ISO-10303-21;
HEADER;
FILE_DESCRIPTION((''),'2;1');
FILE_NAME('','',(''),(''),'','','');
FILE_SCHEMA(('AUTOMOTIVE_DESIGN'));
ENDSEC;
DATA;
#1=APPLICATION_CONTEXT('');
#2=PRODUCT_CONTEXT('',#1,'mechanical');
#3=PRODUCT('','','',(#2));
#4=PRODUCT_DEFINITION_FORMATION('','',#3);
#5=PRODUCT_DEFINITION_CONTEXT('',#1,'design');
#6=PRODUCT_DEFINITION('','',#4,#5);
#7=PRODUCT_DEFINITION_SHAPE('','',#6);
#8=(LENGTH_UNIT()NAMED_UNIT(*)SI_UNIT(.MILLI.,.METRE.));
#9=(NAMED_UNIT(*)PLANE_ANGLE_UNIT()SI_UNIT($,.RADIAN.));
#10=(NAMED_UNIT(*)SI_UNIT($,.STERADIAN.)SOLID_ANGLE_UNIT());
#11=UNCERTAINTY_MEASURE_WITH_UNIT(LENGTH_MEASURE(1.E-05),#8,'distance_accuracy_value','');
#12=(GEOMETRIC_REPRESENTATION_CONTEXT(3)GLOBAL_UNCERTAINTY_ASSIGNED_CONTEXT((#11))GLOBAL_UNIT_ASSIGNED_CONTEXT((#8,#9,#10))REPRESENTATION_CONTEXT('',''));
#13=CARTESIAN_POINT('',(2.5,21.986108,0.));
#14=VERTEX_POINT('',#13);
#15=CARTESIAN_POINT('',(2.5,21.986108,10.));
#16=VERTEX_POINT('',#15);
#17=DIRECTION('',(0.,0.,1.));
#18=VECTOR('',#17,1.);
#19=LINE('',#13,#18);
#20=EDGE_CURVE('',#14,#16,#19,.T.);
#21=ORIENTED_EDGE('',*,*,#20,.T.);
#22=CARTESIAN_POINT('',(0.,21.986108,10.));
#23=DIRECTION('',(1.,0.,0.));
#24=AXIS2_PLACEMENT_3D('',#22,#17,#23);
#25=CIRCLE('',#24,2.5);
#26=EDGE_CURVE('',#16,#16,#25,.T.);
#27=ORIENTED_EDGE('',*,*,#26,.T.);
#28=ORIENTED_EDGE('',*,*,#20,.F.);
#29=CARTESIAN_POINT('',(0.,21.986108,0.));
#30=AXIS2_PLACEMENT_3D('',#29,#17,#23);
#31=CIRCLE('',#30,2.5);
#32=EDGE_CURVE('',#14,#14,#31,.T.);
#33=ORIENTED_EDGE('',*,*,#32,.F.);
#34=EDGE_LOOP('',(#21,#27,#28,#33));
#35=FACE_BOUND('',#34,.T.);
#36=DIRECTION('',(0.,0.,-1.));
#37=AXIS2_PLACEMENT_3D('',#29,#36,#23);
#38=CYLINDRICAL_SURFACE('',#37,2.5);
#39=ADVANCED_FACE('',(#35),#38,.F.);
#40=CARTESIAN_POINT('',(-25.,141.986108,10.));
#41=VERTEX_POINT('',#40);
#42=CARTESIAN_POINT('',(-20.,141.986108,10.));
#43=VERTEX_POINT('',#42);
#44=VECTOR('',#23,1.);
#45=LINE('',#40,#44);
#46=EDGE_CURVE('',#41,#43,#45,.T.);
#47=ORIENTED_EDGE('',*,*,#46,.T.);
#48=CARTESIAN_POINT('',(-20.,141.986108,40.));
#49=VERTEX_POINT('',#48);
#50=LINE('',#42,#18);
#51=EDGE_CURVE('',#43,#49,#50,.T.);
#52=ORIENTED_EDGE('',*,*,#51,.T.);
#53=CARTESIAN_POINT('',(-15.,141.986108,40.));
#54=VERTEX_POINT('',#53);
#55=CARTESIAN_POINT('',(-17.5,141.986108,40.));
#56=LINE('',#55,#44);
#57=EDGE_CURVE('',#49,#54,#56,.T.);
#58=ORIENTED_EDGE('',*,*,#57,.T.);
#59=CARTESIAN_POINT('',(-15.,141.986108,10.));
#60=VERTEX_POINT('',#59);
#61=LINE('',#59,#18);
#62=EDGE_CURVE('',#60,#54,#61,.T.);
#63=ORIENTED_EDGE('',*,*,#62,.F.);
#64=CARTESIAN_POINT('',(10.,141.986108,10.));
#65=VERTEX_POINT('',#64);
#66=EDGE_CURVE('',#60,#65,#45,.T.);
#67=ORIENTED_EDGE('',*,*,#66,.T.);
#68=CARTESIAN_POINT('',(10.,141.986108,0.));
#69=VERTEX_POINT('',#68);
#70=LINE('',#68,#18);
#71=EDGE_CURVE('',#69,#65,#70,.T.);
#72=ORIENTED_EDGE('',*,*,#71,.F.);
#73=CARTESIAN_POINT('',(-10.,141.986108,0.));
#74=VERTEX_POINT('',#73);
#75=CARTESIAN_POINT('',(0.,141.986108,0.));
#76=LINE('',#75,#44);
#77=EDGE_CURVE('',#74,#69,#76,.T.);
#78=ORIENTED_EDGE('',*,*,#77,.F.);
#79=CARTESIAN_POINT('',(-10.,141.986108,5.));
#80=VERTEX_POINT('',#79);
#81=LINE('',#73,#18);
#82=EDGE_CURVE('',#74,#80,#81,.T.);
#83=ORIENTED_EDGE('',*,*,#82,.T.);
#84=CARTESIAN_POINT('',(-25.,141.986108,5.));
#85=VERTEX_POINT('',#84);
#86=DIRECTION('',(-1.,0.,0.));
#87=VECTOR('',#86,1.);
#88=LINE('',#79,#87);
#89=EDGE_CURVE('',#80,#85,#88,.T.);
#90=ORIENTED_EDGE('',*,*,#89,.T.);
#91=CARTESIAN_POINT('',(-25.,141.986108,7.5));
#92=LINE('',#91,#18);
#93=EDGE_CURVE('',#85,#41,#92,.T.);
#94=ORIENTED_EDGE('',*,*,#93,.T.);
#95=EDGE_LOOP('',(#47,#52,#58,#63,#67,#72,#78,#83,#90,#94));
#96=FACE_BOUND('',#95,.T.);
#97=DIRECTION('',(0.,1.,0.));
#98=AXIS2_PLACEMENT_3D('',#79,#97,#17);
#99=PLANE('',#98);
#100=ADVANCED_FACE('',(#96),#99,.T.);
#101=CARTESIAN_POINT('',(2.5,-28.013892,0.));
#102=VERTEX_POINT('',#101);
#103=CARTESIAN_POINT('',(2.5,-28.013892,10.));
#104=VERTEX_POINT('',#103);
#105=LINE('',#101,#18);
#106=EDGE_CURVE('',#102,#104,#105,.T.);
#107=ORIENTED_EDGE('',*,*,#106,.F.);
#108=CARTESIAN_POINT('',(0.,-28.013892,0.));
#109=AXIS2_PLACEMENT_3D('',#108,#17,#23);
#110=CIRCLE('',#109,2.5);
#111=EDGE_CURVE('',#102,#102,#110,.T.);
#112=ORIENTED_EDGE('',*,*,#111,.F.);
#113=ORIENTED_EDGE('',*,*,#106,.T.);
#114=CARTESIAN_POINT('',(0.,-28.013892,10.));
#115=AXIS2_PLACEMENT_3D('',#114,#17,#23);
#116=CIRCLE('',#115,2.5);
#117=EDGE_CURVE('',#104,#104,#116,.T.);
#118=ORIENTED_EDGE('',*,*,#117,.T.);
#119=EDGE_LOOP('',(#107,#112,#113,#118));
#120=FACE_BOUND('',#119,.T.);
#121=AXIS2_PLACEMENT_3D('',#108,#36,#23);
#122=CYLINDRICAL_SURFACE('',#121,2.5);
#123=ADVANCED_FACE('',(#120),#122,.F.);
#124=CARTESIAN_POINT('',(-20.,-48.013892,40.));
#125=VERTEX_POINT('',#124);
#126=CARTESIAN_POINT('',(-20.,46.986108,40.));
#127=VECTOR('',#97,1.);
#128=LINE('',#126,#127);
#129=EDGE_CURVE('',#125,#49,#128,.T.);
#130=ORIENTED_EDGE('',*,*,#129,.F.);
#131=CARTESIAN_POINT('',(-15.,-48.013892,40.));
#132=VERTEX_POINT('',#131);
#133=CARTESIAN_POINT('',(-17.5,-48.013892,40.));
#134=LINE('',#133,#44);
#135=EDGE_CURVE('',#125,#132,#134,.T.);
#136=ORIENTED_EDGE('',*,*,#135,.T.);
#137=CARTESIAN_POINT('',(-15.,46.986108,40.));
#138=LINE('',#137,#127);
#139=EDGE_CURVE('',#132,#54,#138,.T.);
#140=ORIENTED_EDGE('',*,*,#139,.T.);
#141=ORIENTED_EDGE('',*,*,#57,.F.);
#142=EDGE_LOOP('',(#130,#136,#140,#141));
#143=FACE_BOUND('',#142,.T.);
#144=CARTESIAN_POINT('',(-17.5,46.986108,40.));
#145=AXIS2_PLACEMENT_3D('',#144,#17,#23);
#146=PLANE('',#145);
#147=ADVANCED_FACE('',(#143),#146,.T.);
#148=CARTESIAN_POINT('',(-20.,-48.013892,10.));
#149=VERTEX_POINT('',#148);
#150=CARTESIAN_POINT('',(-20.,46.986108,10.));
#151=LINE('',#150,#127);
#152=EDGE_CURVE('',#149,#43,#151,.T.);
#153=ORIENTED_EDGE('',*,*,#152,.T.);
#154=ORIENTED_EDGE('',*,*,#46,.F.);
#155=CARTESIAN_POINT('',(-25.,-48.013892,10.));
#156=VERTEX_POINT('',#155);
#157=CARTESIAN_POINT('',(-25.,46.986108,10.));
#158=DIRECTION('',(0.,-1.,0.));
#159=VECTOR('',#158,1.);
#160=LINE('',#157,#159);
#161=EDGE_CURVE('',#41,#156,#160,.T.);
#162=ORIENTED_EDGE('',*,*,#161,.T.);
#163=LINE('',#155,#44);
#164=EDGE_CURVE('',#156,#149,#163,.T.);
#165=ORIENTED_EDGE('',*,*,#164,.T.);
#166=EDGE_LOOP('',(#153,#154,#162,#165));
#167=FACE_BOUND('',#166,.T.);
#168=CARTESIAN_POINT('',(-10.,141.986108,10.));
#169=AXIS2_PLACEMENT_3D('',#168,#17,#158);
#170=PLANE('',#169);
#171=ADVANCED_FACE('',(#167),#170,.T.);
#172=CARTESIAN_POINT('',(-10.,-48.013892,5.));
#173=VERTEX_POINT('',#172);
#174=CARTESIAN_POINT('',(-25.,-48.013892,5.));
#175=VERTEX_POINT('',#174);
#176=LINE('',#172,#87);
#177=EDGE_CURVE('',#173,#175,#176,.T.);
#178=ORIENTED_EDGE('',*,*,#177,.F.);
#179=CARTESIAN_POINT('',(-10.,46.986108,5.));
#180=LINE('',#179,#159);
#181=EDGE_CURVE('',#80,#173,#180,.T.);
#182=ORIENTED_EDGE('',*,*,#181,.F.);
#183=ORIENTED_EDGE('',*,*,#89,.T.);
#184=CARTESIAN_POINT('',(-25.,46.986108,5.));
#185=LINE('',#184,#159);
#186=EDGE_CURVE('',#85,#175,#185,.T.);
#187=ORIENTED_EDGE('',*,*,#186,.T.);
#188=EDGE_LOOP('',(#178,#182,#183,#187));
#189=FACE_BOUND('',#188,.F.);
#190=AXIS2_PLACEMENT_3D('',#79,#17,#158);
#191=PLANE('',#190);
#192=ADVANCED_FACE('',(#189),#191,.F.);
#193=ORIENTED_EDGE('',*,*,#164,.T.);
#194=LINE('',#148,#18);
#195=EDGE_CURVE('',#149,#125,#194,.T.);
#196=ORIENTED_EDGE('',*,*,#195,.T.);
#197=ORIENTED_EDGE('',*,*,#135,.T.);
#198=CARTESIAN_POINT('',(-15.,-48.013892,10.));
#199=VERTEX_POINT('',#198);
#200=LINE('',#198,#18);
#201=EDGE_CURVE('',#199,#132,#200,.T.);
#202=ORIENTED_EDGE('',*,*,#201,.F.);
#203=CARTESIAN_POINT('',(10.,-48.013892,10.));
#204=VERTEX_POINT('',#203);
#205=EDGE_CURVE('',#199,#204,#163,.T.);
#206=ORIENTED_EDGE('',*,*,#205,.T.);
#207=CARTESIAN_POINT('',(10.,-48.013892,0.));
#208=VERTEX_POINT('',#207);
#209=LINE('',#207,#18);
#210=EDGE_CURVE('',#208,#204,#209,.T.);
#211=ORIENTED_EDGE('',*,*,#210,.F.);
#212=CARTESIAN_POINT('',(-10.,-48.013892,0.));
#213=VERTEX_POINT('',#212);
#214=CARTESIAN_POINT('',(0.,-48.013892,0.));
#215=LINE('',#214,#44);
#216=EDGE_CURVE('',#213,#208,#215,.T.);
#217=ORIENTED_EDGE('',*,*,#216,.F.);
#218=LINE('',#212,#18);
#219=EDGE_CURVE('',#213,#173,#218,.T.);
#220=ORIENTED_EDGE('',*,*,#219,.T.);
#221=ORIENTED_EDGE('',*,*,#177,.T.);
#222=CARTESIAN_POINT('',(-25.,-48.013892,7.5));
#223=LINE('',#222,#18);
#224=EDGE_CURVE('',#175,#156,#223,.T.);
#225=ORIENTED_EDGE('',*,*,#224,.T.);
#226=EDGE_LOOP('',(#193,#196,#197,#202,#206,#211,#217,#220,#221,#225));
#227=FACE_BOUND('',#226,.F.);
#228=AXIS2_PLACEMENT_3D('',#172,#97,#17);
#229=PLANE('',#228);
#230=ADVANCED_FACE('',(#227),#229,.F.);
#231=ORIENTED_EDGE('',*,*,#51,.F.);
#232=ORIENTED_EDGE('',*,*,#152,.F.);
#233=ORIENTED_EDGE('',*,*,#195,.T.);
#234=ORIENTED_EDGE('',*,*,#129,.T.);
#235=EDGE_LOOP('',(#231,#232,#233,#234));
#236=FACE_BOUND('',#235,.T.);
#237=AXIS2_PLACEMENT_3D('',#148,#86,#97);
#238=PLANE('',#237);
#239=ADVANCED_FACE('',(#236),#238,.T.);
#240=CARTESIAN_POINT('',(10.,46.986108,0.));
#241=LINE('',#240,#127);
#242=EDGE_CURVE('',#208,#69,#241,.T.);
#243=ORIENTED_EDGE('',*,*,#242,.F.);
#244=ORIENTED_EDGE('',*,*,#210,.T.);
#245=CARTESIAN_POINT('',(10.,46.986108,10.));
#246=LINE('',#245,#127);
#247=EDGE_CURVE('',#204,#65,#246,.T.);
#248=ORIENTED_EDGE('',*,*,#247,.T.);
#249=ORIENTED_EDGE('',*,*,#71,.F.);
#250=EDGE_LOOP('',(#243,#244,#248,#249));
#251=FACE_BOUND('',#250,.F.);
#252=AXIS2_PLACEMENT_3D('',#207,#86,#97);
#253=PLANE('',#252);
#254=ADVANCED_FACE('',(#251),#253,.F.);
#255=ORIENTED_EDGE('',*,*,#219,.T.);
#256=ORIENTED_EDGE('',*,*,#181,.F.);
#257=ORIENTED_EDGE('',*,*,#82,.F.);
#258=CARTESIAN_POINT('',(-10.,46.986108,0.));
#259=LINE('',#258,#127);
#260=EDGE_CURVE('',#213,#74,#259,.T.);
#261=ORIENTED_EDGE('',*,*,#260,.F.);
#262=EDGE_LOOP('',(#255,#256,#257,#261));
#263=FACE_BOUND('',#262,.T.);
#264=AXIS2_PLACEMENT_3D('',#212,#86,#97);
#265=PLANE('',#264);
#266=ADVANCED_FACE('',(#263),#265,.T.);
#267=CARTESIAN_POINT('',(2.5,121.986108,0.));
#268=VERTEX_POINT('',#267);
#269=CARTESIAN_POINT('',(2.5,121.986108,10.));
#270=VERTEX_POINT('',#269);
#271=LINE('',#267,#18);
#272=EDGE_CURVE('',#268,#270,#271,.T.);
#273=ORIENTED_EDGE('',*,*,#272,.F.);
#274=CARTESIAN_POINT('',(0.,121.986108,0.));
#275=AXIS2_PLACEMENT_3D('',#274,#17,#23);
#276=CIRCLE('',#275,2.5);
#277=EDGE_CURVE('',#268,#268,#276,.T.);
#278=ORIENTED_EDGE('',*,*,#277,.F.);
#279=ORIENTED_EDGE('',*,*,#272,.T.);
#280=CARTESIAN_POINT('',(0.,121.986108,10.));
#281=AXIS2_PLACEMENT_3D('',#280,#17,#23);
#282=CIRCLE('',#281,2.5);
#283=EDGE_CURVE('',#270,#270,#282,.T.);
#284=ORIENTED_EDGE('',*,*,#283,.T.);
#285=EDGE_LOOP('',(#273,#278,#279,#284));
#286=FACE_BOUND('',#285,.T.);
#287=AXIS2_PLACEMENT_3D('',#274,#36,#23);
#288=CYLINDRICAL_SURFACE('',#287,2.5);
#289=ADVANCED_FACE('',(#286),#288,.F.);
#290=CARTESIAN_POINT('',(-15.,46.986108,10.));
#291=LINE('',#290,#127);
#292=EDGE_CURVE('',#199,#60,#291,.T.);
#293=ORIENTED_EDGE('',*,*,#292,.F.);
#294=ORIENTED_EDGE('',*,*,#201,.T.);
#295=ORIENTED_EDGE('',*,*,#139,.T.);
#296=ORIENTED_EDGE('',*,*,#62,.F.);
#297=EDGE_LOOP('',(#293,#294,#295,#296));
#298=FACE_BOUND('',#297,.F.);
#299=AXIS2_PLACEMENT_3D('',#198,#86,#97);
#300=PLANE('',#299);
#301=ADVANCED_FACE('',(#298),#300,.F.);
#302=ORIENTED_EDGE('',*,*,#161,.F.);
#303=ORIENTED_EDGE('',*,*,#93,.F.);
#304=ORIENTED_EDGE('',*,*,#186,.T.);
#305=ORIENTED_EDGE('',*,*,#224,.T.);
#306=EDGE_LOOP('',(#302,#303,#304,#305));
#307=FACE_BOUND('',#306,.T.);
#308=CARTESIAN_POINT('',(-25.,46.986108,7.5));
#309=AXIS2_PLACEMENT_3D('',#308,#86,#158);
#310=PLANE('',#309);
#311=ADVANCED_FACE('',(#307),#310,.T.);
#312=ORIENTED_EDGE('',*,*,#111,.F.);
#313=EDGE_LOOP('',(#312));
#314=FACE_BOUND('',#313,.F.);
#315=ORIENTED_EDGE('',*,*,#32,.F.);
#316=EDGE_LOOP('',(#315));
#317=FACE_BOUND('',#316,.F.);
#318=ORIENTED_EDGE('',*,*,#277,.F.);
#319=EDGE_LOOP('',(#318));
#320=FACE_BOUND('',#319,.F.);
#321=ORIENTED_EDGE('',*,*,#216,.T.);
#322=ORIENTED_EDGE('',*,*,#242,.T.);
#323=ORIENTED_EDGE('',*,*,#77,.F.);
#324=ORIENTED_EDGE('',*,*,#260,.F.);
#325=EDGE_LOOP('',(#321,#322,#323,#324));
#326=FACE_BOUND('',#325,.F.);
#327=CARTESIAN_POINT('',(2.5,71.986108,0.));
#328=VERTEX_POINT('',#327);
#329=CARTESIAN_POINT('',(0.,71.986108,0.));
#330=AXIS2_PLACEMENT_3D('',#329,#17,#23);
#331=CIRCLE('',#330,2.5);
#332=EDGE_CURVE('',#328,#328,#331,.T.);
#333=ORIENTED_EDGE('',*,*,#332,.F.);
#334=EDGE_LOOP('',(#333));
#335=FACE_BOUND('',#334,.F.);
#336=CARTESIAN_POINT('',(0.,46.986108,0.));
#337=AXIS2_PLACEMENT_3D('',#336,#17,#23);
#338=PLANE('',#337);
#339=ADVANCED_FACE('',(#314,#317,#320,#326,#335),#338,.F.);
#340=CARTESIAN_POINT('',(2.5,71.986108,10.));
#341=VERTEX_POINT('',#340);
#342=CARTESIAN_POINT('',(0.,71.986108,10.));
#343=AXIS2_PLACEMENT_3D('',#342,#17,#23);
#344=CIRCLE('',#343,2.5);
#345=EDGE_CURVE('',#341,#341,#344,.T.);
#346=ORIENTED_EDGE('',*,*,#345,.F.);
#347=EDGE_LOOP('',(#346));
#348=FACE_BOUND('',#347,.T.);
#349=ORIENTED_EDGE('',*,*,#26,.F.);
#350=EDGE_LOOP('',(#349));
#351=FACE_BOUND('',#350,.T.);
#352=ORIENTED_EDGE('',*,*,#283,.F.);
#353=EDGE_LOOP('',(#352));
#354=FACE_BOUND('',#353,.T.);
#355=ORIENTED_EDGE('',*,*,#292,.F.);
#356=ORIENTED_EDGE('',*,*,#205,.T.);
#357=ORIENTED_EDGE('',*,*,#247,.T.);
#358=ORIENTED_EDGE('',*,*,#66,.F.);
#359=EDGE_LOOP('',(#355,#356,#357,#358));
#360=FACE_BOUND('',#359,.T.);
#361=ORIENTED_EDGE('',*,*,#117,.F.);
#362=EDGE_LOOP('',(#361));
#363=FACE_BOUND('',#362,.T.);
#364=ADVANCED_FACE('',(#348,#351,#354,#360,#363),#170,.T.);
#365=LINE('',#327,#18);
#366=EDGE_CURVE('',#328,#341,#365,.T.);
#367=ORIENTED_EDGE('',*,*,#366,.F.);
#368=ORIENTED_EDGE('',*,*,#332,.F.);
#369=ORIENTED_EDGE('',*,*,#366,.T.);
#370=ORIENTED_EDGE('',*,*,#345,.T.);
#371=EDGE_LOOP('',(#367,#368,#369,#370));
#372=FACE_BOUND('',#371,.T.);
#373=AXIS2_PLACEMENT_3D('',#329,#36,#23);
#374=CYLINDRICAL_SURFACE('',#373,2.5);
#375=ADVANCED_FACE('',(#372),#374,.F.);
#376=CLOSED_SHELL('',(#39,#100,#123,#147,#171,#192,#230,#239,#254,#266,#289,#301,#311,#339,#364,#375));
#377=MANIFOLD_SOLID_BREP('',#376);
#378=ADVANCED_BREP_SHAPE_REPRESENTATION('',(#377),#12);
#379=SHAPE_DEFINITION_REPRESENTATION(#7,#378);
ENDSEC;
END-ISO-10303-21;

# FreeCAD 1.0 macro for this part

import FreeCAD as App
import Part
import Sketcher

V = App.Vector
Q = App.Units.Quantity

doc = App.newDocument("Part")
body = doc.addObject("PartDesign::Body", "Body")

# Sketch on XY plane
sketch1 = doc.addObject("Sketcher::SketchObject", "Sketch")
body.addObject(sketch1)
sketch1.AttachmentSupport = (doc.XY_Plane, [""])
sketch1.MapMode = "FlatFace"
sketch1.addGeometry(Part.LineSegment(V(-10, 142, 0), V(-10, -48, 0)), False)
sketch1.addGeometry(Part.LineSegment(V(-10, -48, 0), V(10, -48, 0)), False)
sketch1.addGeometry(Part.LineSegment(V(10, -48, 0), V(10, 142, 0)), False)
sketch1.addGeometry(Part.LineSegment(V(10, 142, 0), V(-10, 142, 0)), False)
sketch1.addGeometry(Part.Circle(V(0, -28, 0), V(0, 0, 1), 2.5), False)
sketch1.addGeometry(Part.Circle(V(0, 22, 0), V(0, 0, 1), 2.5), False)
sketch1.addGeometry(Part.Circle(V(0, 72, 0), V(0, 0, 1), 2.5), False)
sketch1.addGeometry(Part.Circle(V(0, 122, 0), V(0, 0, 1), 2.5), False)
sketch1.addConstraint(Sketcher.Constraint("Coincident", 0, 2, 1, 1))
sketch1.addConstraint(Sketcher.Constraint("Coincident", 1, 2, 2, 1))
sketch1.addConstraint(Sketcher.Constraint("Coincident", 2, 2, 3, 1))
sketch1.addConstraint(Sketcher.Constraint("Coincident", 3, 2, 0, 1))
sketch1.addConstraint(Sketcher.Constraint("Vertical", 0))
sketch1.addConstraint(Sketcher.Constraint("Horizontal", 1))
sketch1.addConstraint(Sketcher.Constraint("Vertical", 2))
sketch1.addConstraint(Sketcher.Constraint("Horizontal", 3))
sketch1.addConstraint(Sketcher.Constraint("Equal", 4, 5))
sketch1.addConstraint(Sketcher.Constraint("Equal", 5, 6))
sketch1.addConstraint(Sketcher.Constraint("Equal", 6, 7))
sketch1.addConstraint(Sketcher.Constraint("PointOnObject", 4, 3, -2))
sketch1.addConstraint(Sketcher.Constraint("PointOnObject", 5, 3, -2))
sketch1.addConstraint(Sketcher.Constraint("PointOnObject", 6, 3, -2))
sketch1.addConstraint(Sketcher.Constraint("PointOnObject", 7, 3, -2))
sketch1.addConstraint(Sketcher.Constraint("Diameter", 4, Q("5 mm")))
sketch1.addConstraint(Sketcher.Constraint("DistanceX", 1, 1, 1, 2, Q("20 mm")))
sketch1.addConstraint(Sketcher.Constraint("DistanceY", 0, 2, 0, 1, Q("190 mm")))
sketch1.addConstraint(Sketcher.Constraint("DistanceX", 0, 2, -1, 1, Q("10 mm")))
sketch1.addConstraint(Sketcher.Constraint("DistanceY", 4, 3, 5, 3, Q("50 mm")))
sketch1.addConstraint(Sketcher.Constraint("DistanceY", 5, 3, 6, 3, Q("50 mm")))
sketch1.addConstraint(Sketcher.Constraint("DistanceY", 6, 3, 7, 3, Q("50 mm")))
sketch1.addConstraint(Sketcher.Constraint("DistanceY", 0, 2, 4, 3, Q("20 mm")))
sketch1.addConstraint(Sketcher.Constraint("DistanceY", 4, 3, -1, 1, Q("28.013892 mm")))
pad1 = doc.addObject("PartDesign::Pad", "Pad")
body.addObject(pad1)
pad1.Profile = sketch1
pad1.Length = 10

# Sketch on YZ plane
sketch2 = doc.addObject("Sketcher::SketchObject", "Sketch001")
body.addObject(sketch2)
sketch2.AttachmentSupport = (doc.YZ_Plane, [""])
sketch2.MapMode = "FlatFace"
sketch2.AttachmentOffset = App.Placement(V(0, 0, -10), App.Rotation())
sketch2.addGeometry(Part.LineSegment(V(142, 10, 0), V(142, 5, 0)), False)
sketch2.addGeometry(Part.LineSegment(V(142, 5, 0), V(-48, 5, 0)), False)
sketch2.addGeometry(Part.LineSegment(V(-48, 5, 0), V(-48, 10, 0)), False)
sketch2.addGeometry(Part.LineSegment(V(-48, 10, 0), V(142, 10, 0)), False)
sketch2.addConstraint(Sketcher.Constraint("Coincident", 0, 2, 1, 1))
sketch2.addConstraint(Sketcher.Constraint("Coincident", 1, 2, 2, 1))
sketch2.addConstraint(Sketcher.Constraint("Coincident", 2, 2, 3, 1))
sketch2.addConstraint(Sketcher.Constraint("Coincident", 3, 2, 0, 1))
sketch2.addConstraint(Sketcher.Constraint("Vertical", 0))
sketch2.addConstraint(Sketcher.Constraint("Horizontal", 1))
sketch2.addConstraint(Sketcher.Constraint("Vertical", 2))
sketch2.addConstraint(Sketcher.Constraint("Horizontal", 3))
sketch2.addConstraint(Sketcher.Constraint("DistanceX", 1, 2, 1, 1, Q("190 mm")))
sketch2.addConstraint(Sketcher.Constraint("DistanceY", 0, 2, 0, 1, Q("5 mm")))
sketch2.addConstraint(Sketcher.Constraint("DistanceY", -1, 1, 0, 2, Q("5 mm")))
sketch2.addConstraint(Sketcher.Constraint("DistanceX", -1, 1, 0, 2, Q("141.986108 mm")))
pad2 = doc.addObject("PartDesign::Pad", "Pad001")
body.addObject(pad2)
pad2.Profile = sketch2
pad2.Length = 15
pad2.Reversed = True

# Sketch on XY plane
sketch3 = doc.addObject("Sketcher::SketchObject", "Sketch002")
body.addObject(sketch3)
sketch3.AttachmentSupport = (doc.XY_Plane, [""])
sketch3.MapMode = "FlatFace"
sketch3.AttachmentOffset = App.Placement(V(0, 0, 10), App.Rotation())
sketch3.addGeometry(Part.LineSegment(V(-20, 142, 0), V(-20, -48, 0)), False)
sketch3.addGeometry(Part.LineSegment(V(-20, -48, 0), V(-15, -48, 0)), False)
sketch3.addGeometry(Part.LineSegment(V(-15, -48, 0), V(-15, 142, 0)), False)
sketch3.addGeometry(Part.LineSegment(V(-15, 142, 0), V(-20, 142, 0)), False)
sketch3.addConstraint(Sketcher.Constraint("Coincident", 0, 2, 1, 1))
sketch3.addConstraint(Sketcher.Constraint("Coincident", 1, 2, 2, 1))
sketch3.addConstraint(Sketcher.Constraint("Coincident", 2, 2, 3, 1))
sketch3.addConstraint(Sketcher.Constraint("Coincident", 3, 2, 0, 1))
sketch3.addConstraint(Sketcher.Constraint("Vertical", 0))
sketch3.addConstraint(Sketcher.Constraint("Horizontal", 1))
sketch3.addConstraint(Sketcher.Constraint("Vertical", 2))
sketch3.addConstraint(Sketcher.Constraint("Horizontal", 3))
sketch3.addConstraint(Sketcher.Constraint("DistanceX", 1, 1, 1, 2, Q("5 mm")))
sketch3.addConstraint(Sketcher.Constraint("DistanceY", 0, 2, 0, 1, Q("190 mm")))
sketch3.addConstraint(Sketcher.Constraint("DistanceX", 0, 2, -1, 1, Q("20 mm")))
sketch3.addConstraint(Sketcher.Constraint("DistanceY", 0, 2, -1, 1, Q("48.013892 mm")))
pad3 = doc.addObject("PartDesign::Pad", "Pad002")
body.addObject(pad3)
pad3.Profile = sketch3
pad3.Length = 30

doc.recompute()
